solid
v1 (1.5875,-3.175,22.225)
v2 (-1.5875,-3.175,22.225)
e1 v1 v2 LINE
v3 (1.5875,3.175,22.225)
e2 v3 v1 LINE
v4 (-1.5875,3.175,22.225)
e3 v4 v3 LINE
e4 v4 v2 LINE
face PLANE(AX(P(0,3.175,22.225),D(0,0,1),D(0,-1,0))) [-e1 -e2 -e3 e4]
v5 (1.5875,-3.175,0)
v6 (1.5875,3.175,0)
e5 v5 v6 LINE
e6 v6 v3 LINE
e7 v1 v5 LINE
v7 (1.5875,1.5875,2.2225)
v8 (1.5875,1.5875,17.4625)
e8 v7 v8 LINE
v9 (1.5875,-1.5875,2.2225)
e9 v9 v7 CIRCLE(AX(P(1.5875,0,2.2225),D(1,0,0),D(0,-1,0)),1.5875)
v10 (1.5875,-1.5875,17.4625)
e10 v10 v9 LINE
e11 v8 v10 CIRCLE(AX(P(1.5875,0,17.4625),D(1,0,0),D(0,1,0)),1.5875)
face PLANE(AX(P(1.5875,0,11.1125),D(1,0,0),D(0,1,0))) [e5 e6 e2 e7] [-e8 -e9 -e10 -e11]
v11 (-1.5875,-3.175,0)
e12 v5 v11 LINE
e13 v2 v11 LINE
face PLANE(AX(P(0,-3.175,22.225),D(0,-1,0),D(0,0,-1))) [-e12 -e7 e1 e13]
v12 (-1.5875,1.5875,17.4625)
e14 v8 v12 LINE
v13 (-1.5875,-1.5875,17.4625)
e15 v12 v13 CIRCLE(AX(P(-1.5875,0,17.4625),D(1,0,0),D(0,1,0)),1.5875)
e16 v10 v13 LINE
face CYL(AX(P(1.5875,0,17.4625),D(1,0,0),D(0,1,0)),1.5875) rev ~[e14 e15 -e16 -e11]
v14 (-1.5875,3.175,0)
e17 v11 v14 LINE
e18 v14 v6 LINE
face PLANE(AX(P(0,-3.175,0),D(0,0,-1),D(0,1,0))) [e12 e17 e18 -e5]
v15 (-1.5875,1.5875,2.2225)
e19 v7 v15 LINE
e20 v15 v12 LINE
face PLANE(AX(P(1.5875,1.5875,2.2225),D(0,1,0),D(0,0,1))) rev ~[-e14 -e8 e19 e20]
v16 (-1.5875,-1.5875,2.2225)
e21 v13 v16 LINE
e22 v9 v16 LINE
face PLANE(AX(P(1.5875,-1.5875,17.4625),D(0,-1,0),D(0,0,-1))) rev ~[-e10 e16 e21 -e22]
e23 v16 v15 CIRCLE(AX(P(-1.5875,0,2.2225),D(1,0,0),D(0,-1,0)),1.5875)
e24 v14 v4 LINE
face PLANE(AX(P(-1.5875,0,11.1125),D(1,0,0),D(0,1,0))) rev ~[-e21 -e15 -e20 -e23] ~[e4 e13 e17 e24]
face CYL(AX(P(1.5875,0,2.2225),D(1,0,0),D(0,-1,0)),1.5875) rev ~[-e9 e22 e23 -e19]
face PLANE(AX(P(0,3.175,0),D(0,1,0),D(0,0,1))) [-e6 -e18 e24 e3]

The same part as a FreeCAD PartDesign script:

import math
import FreeCAD as App
import Part
import Sketcher
Q = App.Units.Quantity

doc = App.newDocument("Part")
body = doc.addObject("PartDesign::Body", "Body")

# Sketch on YZ plane
sketch1 = doc.addObject("Sketcher::SketchObject", "Sketch")
body.addObject(sketch1)
sketch1.AttachmentSupport = (doc.YZ_Plane, [""])
sketch1.MapMode = "FlatFace"
sketch1.addGeometry(Part.LineSegment(App.Vector(-3, 0, 0), App.Vector(3, 0, 0)), False)
sketch1.addGeometry(Part.LineSegment(App.Vector(3, 0, 0), App.Vector(3, 22, 0)), False)
sketch1.addGeometry(Part.LineSegment(App.Vector(3, 22, 0), App.Vector(-3, 22, 0)), False)
sketch1.addGeometry(Part.LineSegment(App.Vector(-3, 22, 0), App.Vector(-3, 0, 0)), False)
sketch1.addConstraint(Sketcher.Constraint("Coincident", 0, 2, 1, 1))
sketch1.addConstraint(Sketcher.Constraint("Coincident", 1, 2, 2, 1))
sketch1.addConstraint(Sketcher.Constraint("Coincident", 2, 2, 3, 1))
sketch1.addConstraint(Sketcher.Constraint("Coincident", 3, 2, 0, 1))
sketch1.addConstraint(Sketcher.Constraint("Horizontal", 0))
sketch1.addConstraint(Sketcher.Constraint("Vertical", 1))
sketch1.addConstraint(Sketcher.Constraint("Horizontal", 2))
sketch1.addConstraint(Sketcher.Constraint("Vertical", 3))
sketch1.addConstraint(Sketcher.Constraint("Symmetric", 0, 2, 3, 2, -1, 1))
sketch1.addConstraint(Sketcher.Constraint("DistanceX", 0, 1, 0, 2, Q("0.25 in")))
sketch1.addConstraint(Sketcher.Constraint("DistanceY", 1, 1, 1, 2, Q("0.875 in")))
pad1 = doc.addObject("PartDesign::Pad", "Pad")
body.addObject(pad1)
pad1.Profile = sketch1
pad1.Length = Q("0.125 in")
pad1.Midplane = True

# Sketch on YZ plane
sketch2 = doc.addObject("Sketcher::SketchObject", "Sketch001")
body.addObject(sketch2)
sketch2.AttachmentSupport = (doc.YZ_Plane, [""])
sketch2.MapMode = "FlatFace"
sketch2.AttachmentOffset = App.Placement(App.Vector(0, 0, 0.0625 * 25.4), App.Rotation())
sketch2.addGeometry(Part.ArcOfCircle(Part.Circle(App.Vector(0, 17.5, 0), App.Vector(0, 0, 1), 1.6), math.radians(0), math.radians(180)), False)
sketch2.addGeometry(Part.LineSegment(App.Vector(-1.6, 17.5, 0), App.Vector(-1.6, 2.2, 0)), False)
sketch2.addGeometry(Part.ArcOfCircle(Part.Circle(App.Vector(0, 2.2, 0), App.Vector(0, 0, 1), 1.6), math.radians(180), math.radians(360)), False)
sketch2.addGeometry(Part.LineSegment(App.Vector(1.6, 2.2, 0), App.Vector(1.6, 17.5, 0)), False)
sketch2.addConstraint(Sketcher.Constraint("Tangent", 0, 2, 1, 1))
sketch2.addConstraint(Sketcher.Constraint("Tangent", 1, 2, 2, 1))
sketch2.addConstraint(Sketcher.Constraint("Tangent", 2, 2, 3, 1))
sketch2.addConstraint(Sketcher.Constraint("Tangent", 3, 2, 0, 1))
sketch2.addConstraint(Sketcher.Constraint("Vertical", 1))
sketch2.addConstraint(Sketcher.Constraint("Vertical", 3))
sketch2.addConstraint(Sketcher.Constraint("PointOnObject", 0, 3, -2))
sketch2.addConstraint(Sketcher.Constraint("DistanceY", 1, 2, 1, 1, Q("0.6 in")))
sketch2.addConstraint(Sketcher.Constraint("Radius", 0, Q("0.0625 in")))
sketch2.addConstraint(Sketcher.Constraint("DistanceY", -1, 1, 0, 3, Q("0.6875 in")))
pocket1 = doc.addObject("PartDesign::Pocket", "Pocket")
body.addObject(pocket1)
pocket1.Profile = sketch2
pocket1.Type = "ThroughAll"

doc.recompute()
